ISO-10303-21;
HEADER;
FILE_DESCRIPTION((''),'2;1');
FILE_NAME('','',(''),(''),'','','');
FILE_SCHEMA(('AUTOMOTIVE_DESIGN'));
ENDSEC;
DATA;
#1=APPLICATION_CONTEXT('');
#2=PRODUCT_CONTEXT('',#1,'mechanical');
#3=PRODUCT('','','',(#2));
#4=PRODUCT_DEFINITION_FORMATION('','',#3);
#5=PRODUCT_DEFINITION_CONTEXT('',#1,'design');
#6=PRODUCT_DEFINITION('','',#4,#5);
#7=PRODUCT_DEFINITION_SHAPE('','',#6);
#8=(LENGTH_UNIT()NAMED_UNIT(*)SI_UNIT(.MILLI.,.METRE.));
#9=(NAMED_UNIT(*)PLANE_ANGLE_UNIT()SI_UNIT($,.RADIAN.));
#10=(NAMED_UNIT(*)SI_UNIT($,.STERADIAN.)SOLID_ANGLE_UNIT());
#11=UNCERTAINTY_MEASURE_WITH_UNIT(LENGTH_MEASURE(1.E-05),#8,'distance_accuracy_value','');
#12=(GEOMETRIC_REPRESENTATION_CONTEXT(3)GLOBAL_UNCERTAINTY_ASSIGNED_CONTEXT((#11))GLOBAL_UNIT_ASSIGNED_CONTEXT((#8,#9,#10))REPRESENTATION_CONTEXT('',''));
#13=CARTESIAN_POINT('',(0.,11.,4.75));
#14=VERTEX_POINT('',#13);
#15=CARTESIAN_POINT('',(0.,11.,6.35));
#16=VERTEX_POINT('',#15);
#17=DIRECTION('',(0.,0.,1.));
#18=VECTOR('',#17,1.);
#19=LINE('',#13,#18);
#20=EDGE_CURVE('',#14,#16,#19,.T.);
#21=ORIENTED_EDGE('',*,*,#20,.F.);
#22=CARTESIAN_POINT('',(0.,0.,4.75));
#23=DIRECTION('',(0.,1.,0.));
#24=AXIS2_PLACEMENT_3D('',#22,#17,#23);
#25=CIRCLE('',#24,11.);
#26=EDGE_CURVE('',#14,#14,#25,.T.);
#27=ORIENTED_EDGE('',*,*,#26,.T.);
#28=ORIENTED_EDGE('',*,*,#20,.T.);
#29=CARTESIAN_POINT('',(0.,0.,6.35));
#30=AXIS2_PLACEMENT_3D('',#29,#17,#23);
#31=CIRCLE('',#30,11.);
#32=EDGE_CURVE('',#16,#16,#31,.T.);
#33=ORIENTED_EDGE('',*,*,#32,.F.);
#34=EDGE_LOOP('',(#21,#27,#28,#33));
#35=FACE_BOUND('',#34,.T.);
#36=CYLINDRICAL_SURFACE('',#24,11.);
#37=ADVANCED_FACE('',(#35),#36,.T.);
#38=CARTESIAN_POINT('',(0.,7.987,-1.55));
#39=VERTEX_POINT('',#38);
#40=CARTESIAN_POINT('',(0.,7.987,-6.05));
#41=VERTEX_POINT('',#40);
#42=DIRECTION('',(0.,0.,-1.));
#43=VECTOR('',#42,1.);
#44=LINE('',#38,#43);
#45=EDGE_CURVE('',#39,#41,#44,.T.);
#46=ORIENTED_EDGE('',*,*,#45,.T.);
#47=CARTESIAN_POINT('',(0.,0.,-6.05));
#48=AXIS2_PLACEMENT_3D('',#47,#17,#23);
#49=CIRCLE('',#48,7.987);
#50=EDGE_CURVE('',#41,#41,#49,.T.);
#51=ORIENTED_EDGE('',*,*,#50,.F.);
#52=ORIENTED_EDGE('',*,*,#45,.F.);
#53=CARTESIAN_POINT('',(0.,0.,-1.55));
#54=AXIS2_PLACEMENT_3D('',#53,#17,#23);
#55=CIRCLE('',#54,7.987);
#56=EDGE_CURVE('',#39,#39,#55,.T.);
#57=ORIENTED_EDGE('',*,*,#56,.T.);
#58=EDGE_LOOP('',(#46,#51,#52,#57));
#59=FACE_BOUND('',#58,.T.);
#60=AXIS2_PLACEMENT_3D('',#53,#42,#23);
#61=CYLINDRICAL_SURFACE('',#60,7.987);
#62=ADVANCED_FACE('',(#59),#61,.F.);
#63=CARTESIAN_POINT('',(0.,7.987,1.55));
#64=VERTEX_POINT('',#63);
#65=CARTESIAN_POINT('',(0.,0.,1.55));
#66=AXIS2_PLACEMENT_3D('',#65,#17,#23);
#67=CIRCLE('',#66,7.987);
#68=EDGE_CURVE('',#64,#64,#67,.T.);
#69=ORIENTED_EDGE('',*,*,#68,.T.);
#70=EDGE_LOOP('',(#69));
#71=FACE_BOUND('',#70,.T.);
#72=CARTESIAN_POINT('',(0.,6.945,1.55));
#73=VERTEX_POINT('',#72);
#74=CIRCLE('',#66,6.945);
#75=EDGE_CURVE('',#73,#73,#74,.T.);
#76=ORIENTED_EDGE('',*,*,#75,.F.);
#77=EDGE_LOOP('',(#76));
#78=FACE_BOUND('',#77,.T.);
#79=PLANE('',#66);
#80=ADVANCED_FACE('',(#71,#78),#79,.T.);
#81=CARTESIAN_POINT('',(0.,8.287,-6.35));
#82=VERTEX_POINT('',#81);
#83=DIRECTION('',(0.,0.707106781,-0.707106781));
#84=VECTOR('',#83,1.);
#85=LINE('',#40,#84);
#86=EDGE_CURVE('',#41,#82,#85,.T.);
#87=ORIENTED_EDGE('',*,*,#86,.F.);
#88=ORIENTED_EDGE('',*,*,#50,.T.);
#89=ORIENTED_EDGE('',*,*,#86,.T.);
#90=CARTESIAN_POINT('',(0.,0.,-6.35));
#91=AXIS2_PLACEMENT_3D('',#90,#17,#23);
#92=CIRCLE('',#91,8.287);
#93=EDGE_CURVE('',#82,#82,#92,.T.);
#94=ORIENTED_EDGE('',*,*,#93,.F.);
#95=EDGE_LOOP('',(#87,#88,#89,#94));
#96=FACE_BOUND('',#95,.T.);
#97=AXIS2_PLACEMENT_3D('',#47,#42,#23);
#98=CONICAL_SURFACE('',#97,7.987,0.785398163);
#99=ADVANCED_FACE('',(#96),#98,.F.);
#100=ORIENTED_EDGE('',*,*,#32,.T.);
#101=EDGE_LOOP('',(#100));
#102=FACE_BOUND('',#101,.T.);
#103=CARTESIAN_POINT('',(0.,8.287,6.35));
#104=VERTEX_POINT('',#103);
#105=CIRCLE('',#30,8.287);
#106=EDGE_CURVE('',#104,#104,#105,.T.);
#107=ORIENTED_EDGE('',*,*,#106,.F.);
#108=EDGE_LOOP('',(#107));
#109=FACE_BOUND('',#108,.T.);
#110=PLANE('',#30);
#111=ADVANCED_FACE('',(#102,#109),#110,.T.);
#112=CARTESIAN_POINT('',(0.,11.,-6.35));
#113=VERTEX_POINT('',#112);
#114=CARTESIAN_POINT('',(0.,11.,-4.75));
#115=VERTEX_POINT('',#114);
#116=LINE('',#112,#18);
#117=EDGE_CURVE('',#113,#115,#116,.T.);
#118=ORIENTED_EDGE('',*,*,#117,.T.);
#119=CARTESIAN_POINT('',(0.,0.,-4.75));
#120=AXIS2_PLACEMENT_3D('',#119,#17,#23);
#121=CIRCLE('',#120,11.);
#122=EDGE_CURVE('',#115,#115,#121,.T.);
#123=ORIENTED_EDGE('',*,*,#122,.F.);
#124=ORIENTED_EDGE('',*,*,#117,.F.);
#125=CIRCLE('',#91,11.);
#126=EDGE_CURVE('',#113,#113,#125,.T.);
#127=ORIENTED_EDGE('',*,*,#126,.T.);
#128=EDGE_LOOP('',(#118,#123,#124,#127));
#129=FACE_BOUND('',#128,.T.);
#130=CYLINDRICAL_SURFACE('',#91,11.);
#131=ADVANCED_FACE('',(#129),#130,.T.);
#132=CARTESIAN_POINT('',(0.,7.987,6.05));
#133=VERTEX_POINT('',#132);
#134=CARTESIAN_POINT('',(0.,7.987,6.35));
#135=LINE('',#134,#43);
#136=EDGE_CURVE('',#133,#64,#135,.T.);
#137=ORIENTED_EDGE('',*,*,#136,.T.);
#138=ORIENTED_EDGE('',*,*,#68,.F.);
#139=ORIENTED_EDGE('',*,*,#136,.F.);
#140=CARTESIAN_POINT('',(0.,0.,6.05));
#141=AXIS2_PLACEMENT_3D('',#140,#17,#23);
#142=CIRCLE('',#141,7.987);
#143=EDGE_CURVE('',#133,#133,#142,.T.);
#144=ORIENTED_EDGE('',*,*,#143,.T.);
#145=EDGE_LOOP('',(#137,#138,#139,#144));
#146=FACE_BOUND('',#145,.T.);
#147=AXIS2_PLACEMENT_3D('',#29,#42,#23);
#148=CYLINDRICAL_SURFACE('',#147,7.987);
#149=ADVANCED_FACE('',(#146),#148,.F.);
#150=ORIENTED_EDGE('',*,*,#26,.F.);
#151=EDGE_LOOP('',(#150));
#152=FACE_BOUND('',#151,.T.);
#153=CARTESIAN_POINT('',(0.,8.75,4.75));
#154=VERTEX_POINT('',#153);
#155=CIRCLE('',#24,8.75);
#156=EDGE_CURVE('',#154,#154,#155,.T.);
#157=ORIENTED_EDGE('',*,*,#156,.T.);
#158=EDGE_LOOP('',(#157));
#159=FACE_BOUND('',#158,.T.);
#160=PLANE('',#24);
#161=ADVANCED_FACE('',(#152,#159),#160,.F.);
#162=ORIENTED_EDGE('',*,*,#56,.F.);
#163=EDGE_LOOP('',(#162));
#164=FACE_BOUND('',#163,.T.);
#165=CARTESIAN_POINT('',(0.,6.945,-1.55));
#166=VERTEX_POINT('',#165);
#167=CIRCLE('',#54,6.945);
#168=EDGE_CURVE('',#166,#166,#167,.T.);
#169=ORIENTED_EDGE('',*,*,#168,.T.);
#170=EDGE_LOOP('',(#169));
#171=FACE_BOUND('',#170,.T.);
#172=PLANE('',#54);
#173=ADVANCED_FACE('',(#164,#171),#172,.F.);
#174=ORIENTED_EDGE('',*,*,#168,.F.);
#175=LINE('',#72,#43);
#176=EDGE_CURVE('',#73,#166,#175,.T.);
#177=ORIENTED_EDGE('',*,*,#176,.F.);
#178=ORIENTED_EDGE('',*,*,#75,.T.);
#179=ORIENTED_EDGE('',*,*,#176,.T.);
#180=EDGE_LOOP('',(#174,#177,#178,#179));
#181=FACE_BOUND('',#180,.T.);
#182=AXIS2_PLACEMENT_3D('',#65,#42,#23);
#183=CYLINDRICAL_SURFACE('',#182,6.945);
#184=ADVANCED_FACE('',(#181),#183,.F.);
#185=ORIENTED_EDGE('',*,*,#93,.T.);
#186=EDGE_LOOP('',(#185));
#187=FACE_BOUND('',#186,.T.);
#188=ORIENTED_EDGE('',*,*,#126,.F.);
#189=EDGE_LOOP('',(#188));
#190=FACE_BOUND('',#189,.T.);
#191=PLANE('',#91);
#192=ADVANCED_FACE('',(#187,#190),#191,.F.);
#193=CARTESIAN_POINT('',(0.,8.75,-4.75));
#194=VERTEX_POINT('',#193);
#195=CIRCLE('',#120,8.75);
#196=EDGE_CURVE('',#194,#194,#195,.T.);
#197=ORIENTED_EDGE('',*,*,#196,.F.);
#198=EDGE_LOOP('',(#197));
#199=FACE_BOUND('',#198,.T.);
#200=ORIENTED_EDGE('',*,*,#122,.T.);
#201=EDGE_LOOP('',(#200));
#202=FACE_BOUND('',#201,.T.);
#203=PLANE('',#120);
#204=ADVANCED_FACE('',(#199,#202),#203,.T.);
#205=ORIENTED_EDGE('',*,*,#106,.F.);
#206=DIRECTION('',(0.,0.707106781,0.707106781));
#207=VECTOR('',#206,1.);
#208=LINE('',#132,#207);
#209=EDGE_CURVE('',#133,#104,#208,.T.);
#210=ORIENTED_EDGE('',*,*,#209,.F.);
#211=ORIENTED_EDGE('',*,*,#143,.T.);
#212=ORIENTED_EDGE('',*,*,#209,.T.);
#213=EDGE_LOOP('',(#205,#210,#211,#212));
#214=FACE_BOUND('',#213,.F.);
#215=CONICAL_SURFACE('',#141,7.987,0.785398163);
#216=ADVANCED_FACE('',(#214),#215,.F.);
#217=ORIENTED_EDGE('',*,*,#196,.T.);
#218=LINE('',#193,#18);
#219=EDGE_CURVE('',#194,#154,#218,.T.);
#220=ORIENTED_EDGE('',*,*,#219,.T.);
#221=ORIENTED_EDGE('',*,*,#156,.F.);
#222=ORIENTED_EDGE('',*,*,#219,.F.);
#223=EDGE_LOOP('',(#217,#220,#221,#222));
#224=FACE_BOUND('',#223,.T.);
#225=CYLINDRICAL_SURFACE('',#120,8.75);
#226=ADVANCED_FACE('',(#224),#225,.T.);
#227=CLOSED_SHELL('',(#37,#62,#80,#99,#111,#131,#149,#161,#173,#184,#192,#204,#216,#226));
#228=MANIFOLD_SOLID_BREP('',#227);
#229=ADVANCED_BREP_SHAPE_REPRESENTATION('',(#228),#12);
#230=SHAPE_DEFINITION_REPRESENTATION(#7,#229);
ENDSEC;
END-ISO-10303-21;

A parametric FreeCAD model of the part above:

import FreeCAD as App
import Part
import Sketcher
from FreeCAD import Vector


def edges_at(feature, points):
    """Names of the edges that pass closest to the given points."""
    edges = feature.Shape.Edges
    near = lambda p: min(range(len(edges)), key=lambda i: edges[i].distToShape(Part.Vertex(*p))[0])
    return sorted({f"Edge{near(p) + 1}" for p in points})

doc = App.newDocument("Part")
body = doc.addObject("PartDesign::Body", "Body")

sketch1 = body.newObject("Sketcher::SketchObject", "Sketch")
sketch1.AttachmentSupport = (doc.getObject("YZ_Plane"), [""])
sketch1.MapMode = "FlatFace"
sketch1.addGeometry([
    Part.LineSegment(Vector(8, -1.6, 0), Vector(8, -6.3, 0)),
    Part.LineSegment(Vector(8, -6.3, 0), Vector(11, -6.3, 0)),
    Part.LineSegment(Vector(11, -6.3, 0), Vector(11, -4.8, 0)),
    Part.LineSegment(Vector(11, -4.8, 0), Vector(8.8, -4.8, 0)),
    Part.LineSegment(Vector(8.8, -4.8, 0), Vector(8.8, 4.8, 0)),
    Part.LineSegment(Vector(8.8, 4.8, 0), Vector(11, 4.8, 0)),
    Part.LineSegment(Vector(11, 4.8, 0), Vector(11, 6.3, 0)),
    Part.LineSegment(Vector(11, 6.3, 0), Vector(8, 6.3, 0)),
    Part.LineSegment(Vector(8, 6.3, 0), Vector(8, 1.6, 0)),
    Part.LineSegment(Vector(8, 1.6, 0), Vector(6.9, 1.6, 0)),
    Part.LineSegment(Vector(6.9, 1.6, 0), Vector(6.9, -1.6, 0)),
    Part.LineSegment(Vector(6.9, -1.6, 0), Vector(8, -1.6, 0)),
], False)
sketch1.addConstraint([
    Sketcher.Constraint("Coincident", 0, 2, 1, 1),
    Sketcher.Constraint("Coincident", 1, 2, 2, 1),
    Sketcher.Constraint("Coincident", 2, 2, 3, 1),
    Sketcher.Constraint("Coincident", 3, 2, 4, 1),
    Sketcher.Constraint("Coincident", 4, 2, 5, 1),
    Sketcher.Constraint("Coincident", 5, 2, 6, 1),
    Sketcher.Constraint("Coincident", 6, 2, 7, 1),
    Sketcher.Constraint("Coincident", 7, 2, 8, 1),
    Sketcher.Constraint("Coincident", 8, 2, 9, 1),
    Sketcher.Constraint("Coincident", 9, 2, 10, 1),
    Sketcher.Constraint("Coincident", 10, 2, 11, 1),
    Sketcher.Constraint("Coincident", 11, 2, 0, 1),
    Sketcher.Constraint("Vertical", 0),
    Sketcher.Constraint("Horizontal", 1),
    Sketcher.Constraint("Vertical", 2),
    Sketcher.Constraint("Horizontal", 3),
    Sketcher.Constraint("Vertical", 4),
    Sketcher.Constraint("Horizontal", 5),
    Sketcher.Constraint("Vertical", 6),
    Sketcher.Constraint("Horizontal", 7),
    Sketcher.Constraint("Vertical", 8),
    Sketcher.Constraint("Horizontal", 9),
    Sketcher.Constraint("Vertical", 10),
    Sketcher.Constraint("Horizontal", 11),
    Sketcher.Constraint("Symmetric", 2, 2, 5, 2, -1),
    Sketcher.Constraint("Symmetric", 0, 2, 7, 2, -1),
    Sketcher.Constraint("Equal", 0, 8),
    Sketcher.Constraint("DistanceY", 4, 1, 4, 2, 9.5),
    Sketcher.Constraint("DistanceY", 10, 2, 10, 1, 3.1),
    Sketcher.Constraint("DistanceY", 1, 2, 6, 2, 12.7),
    Sketcher.Constraint("DistanceX", -1, 1, 1, 2, 11.0),
    Sketcher.Constraint("DistanceX", 3, 2, 3, 1, 2.25),
    Sketcher.Constraint("DistanceX", 1, 1, 1, 2, 3.013),
    Sketcher.Constraint("DistanceX", 9, 2, 9, 1, 1.042),
])
revolution = body.newObject("PartDesign::Revolution", "Revolution")
revolution.Profile = sketch1
revolution.ReferenceAxis = (sketch1, ["V_Axis"])
revolution.Angle = 360
doc.recompute()

chamfer = body.newObject("PartDesign::Chamfer", "Chamfer")
chamfer.Base = (revolution, edges_at(revolution, [(0, -7.987, 6.35), (0, -7.987, -6.35)]))
chamfer.Size = 0.3

doc.recompute()
